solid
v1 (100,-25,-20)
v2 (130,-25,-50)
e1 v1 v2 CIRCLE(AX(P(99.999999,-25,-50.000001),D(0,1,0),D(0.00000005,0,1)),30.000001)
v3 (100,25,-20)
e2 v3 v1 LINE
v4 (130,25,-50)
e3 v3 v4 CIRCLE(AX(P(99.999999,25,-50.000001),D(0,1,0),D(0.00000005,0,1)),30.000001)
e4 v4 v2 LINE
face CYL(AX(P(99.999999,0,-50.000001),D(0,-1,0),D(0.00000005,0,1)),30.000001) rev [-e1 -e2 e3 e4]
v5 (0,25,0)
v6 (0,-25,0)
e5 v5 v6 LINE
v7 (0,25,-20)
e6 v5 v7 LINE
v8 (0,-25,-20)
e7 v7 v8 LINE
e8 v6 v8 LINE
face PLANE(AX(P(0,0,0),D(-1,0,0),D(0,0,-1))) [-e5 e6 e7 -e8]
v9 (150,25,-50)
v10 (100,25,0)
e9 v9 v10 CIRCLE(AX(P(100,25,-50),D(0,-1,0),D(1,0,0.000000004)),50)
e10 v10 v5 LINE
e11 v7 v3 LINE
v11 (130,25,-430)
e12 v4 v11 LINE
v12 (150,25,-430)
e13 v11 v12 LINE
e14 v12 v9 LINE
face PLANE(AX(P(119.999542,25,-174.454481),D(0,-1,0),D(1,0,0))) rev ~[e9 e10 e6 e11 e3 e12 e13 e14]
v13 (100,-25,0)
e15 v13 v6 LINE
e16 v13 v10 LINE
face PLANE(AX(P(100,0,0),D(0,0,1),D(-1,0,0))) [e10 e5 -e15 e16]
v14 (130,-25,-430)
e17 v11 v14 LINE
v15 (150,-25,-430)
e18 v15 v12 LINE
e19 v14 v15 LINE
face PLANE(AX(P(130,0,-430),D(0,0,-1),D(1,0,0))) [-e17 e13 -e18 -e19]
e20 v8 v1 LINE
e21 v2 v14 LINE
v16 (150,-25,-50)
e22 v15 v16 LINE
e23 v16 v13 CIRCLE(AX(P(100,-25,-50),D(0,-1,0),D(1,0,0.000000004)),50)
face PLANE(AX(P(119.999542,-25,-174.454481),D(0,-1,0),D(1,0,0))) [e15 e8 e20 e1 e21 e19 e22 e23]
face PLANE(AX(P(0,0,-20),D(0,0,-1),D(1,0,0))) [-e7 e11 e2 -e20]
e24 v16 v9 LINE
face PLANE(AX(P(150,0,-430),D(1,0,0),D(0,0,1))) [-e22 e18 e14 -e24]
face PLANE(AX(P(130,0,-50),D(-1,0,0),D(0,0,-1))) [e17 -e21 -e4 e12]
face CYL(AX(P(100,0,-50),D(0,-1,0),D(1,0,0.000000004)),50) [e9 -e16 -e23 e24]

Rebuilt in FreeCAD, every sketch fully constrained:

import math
import FreeCAD as App
import Part
import Sketcher

doc = App.newDocument("Part")
body = doc.addObject("PartDesign::Body", "Body")

# Sketch on XZ plane
sketch1 = doc.addObject("Sketcher::SketchObject", "Sketch")
body.addObject(sketch1)
sketch1.AttachmentSupport = (doc.XZ_Plane, [""])
sketch1.MapMode = "FlatFace"
sketch1.addGeometry(Part.LineSegment(App.Vector(100, 0, 0), App.Vector(0, 0, 0)), False)
sketch1.addGeometry(Part.LineSegment(App.Vector(0, 0, 0), App.Vector(0, -20, 0)), False)
sketch1.addGeometry(Part.LineSegment(App.Vector(0, -20, 0), App.Vector(100, -20, 0)), False)
sketch1.addGeometry(Part.ArcOfCircle(Part.Circle(App.Vector(100, -50, 0), App.Vector(0, 0, 1), 30), math.radians(0), math.radians(90)), False)
sketch1.addGeometry(Part.LineSegment(App.Vector(130, -50, 0), App.Vector(130, -430, 0)), False)
sketch1.addGeometry(Part.LineSegment(App.Vector(130, -430, 0), App.Vector(150, -430, 0)), False)
sketch1.addGeometry(Part.LineSegment(App.Vector(150, -430, 0), App.Vector(150, -50, 0)), False)
sketch1.addGeometry(Part.ArcOfCircle(Part.Circle(App.Vector(100, -50, 0), App.Vector(0, 0, 1), 50), math.radians(0), math.radians(90)), False)
sketch1.addConstraint(Sketcher.Constraint("Coincident", 0, 2, 1, 1))
sketch1.addConstraint(Sketcher.Constraint("Coincident", 1, 2, 2, 1))
sketch1.addConstraint(Sketcher.Constraint("Tangent", 2, 2, 3, 2))
sketch1.addConstraint(Sketcher.Constraint("Tangent", 3, 1, 4, 1))
sketch1.addConstraint(Sketcher.Constraint("Coincident", 4, 2, 5, 1))
sketch1.addConstraint(Sketcher.Constraint("Coincident", 5, 2, 6, 1))
sketch1.addConstraint(Sketcher.Constraint("Tangent", 6, 2, 7, 1))
sketch1.addConstraint(Sketcher.Constraint("Tangent", 7, 2, 0, 1))
sketch1.addConstraint(Sketcher.Constraint("Horizontal", 0))
sketch1.addConstraint(Sketcher.Constraint("Vertical", 1))
sketch1.addConstraint(Sketcher.Constraint("Horizontal", 2))
sketch1.addConstraint(Sketcher.Constraint("Vertical", 4))
sketch1.addConstraint(Sketcher.Constraint("Horizontal", 5))
sketch1.addConstraint(Sketcher.Constraint("Vertical", 6))
sketch1.addConstraint(Sketcher.Constraint("Coincident", 0, 2, -1, 1))
sketch1.addConstraint(Sketcher.Constraint("Coincident", 7, 3, 3, 3))
sketch1.addConstraint(Sketcher.Constraint("Radius", 3, 30.000001))
sketch1.addConstraint(Sketcher.Constraint("Radius", 7, 50.0))
sketch1.addConstraint(Sketcher.Constraint("DistanceX", 0, 2, 0, 1, 100.0))
sketch1.addConstraint(Sketcher.Constraint("DistanceY", 4, 2, 4, 1, 380.0))
pad1 = doc.addObject("PartDesign::Pad", "Pad")
body.addObject(pad1)
pad1.Profile = sketch1
pad1.Type = "TwoLengths"
pad1.Length = 25
pad1.Length2 = 25

doc.recompute()
